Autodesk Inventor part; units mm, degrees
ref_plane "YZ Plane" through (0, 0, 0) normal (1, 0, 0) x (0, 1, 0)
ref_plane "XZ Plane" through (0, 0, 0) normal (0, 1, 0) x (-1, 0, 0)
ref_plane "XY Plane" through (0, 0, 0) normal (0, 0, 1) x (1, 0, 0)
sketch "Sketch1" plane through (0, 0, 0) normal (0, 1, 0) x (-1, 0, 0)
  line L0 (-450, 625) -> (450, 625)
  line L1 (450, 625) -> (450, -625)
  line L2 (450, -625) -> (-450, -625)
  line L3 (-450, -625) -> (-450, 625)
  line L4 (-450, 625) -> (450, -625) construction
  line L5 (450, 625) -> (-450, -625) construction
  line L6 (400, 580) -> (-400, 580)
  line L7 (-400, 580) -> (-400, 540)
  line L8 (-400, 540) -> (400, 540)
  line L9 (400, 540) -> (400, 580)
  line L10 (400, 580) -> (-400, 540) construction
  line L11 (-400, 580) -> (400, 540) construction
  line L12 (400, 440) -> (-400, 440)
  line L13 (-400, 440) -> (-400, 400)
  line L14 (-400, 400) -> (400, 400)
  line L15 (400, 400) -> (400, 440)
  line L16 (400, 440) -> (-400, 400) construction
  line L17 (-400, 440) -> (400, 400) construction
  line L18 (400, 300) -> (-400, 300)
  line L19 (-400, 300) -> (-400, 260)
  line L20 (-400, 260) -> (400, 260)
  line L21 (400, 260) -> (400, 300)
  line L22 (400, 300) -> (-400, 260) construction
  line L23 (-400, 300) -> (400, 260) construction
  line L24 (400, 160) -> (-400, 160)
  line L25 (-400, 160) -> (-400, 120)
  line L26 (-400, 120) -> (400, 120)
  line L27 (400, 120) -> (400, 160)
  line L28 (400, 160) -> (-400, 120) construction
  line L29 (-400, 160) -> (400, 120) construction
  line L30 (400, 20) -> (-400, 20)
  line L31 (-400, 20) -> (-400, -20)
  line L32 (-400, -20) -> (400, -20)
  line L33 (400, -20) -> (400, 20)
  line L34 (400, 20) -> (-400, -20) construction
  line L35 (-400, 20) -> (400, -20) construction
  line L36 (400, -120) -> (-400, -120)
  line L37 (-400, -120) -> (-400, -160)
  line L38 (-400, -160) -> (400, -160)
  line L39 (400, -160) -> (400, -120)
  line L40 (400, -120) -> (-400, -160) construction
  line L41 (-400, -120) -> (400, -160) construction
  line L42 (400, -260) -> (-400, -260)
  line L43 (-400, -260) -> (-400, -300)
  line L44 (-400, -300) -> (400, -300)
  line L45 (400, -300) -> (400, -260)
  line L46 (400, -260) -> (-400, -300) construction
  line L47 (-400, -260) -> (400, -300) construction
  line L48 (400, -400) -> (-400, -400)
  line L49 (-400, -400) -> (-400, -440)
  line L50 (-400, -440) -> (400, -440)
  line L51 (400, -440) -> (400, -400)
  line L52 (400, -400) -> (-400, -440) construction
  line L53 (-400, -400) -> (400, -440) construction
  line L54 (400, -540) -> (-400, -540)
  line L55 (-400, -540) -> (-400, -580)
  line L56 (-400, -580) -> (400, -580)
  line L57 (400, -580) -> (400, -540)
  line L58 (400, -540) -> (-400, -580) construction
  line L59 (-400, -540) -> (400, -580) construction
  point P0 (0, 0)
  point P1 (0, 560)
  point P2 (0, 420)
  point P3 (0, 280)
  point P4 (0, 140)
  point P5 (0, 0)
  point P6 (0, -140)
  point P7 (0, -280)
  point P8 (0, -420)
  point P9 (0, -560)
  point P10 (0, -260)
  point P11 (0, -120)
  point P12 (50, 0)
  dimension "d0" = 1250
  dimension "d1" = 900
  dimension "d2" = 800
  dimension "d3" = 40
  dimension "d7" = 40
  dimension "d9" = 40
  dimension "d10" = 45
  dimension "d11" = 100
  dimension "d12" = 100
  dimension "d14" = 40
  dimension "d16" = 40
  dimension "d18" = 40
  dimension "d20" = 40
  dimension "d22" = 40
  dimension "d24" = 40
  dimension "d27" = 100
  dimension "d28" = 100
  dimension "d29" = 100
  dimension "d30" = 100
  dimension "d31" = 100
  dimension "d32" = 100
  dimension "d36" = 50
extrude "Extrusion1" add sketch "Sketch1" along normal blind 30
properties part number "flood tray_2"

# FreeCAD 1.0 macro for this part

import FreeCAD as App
import Part
import Sketcher

V = App.Vector
Q = App.Units.Quantity

doc = App.newDocument("Part")
body = doc.addObject("PartDesign::Body", "Body")

sketch1 = body.newObject("Sketcher::SketchObject", "Sketch")
sketch1.AttachmentSupport = (doc.getObject("XZ_Plane"), [""])
sketch1.MapMode = "FlatFace"
sketch1.addGeometry(Part.LineSegment(V(-450, 625, 0), V(450, 625, 0)), False)
sketch1.addGeometry(Part.LineSegment(V(450, 625, 0), V(450, -625, 0)), False)
sketch1.addGeometry(Part.LineSegment(V(450, -625, 0), V(-450, -625, 0)), False)
sketch1.addGeometry(Part.LineSegment(V(-450, -625, 0), V(-450, 625, 0)), False)
sketch1.addGeometry(Part.LineSegment(V(400, -540, 0), V(-400, -540, 0)), False)
sketch1.addGeometry(Part.LineSegment(V(-400, -540, 0), V(-400, -580, 0)), False)
sketch1.addGeometry(Part.LineSegment(V(-400, -580, 0), V(400, -580, 0)), False)
sketch1.addGeometry(Part.LineSegment(V(400, -580, 0), V(400, -540, 0)), False)
sketch1.addGeometry(Part.LineSegment(V(400, -400, 0), V(-400, -400, 0)), False)
sketch1.addGeometry(Part.LineSegment(V(-400, -400, 0), V(-400, -440, 0)), False)
sketch1.addGeometry(Part.LineSegment(V(-400, -440, 0), V(400, -440, 0)), False)
sketch1.addGeometry(Part.LineSegment(V(400, -440, 0), V(400, -400, 0)), False)
sketch1.addGeometry(Part.LineSegment(V(400, -260, 0), V(-400, -260, 0)), False)
sketch1.addGeometry(Part.LineSegment(V(-400, -260, 0), V(-400, -300, 0)), False)
sketch1.addGeometry(Part.LineSegment(V(-400, -300, 0), V(400, -300, 0)), False)
sketch1.addGeometry(Part.LineSegment(V(400, -300, 0), V(400, -260, 0)), False)
sketch1.addGeometry(Part.LineSegment(V(400, -120, 0), V(-400, -120, 0)), False)
sketch1.addGeometry(Part.LineSegment(V(-400, -120, 0), V(-400, -160, 0)), False)
sketch1.addGeometry(Part.LineSegment(V(-400, -160, 0), V(400, -160, 0)), False)
sketch1.addGeometry(Part.LineSegment(V(400, -160, 0), V(400, -120, 0)), False)
sketch1.addGeometry(Part.LineSegment(V(400, 20, 0), V(-400, 20, 0)), False)
sketch1.addGeometry(Part.LineSegment(V(-400, 20, 0), V(-400, -20, 0)), False)
sketch1.addGeometry(Part.LineSegment(V(-400, -20, 0), V(400, -20, 0)), False)
sketch1.addGeometry(Part.LineSegment(V(400, -20, 0), V(400, 20, 0)), False)
sketch1.addGeometry(Part.LineSegment(V(400, 160, 0), V(-400, 160, 0)), False)
sketch1.addGeometry(Part.LineSegment(V(-400, 160, 0), V(-400, 120, 0)), False)
sketch1.addGeometry(Part.LineSegment(V(-400, 120, 0), V(400, 120, 0)), False)
sketch1.addGeometry(Part.LineSegment(V(400, 120, 0), V(400, 160, 0)), False)
sketch1.addGeometry(Part.LineSegment(V(400, 300, 0), V(-400, 300, 0)), False)
sketch1.addGeometry(Part.LineSegment(V(-400, 300, 0), V(-400, 260, 0)), False)
sketch1.addGeometry(Part.LineSegment(V(-400, 260, 0), V(400, 260, 0)), False)
sketch1.addGeometry(Part.LineSegment(V(400, 260, 0), V(400, 300, 0)), False)
sketch1.addGeometry(Part.LineSegment(V(400, 440, 0), V(-400, 440, 0)), False)
sketch1.addGeometry(Part.LineSegment(V(-400, 440, 0), V(-400, 400, 0)), False)
sketch1.addGeometry(Part.LineSegment(V(-400, 400, 0), V(400, 400, 0)), False)
sketch1.addGeometry(Part.LineSegment(V(400, 400, 0), V(400, 440, 0)), False)
sketch1.addGeometry(Part.LineSegment(V(400, 580, 0), V(-400, 580, 0)), False)
sketch1.addGeometry(Part.LineSegment(V(-400, 580, 0), V(-400, 540, 0)), False)
sketch1.addGeometry(Part.LineSegment(V(-400, 540, 0), V(400, 540, 0)), False)
sketch1.addGeometry(Part.LineSegment(V(400, 540, 0), V(400, 580, 0)), False)
sketch1.addConstraint(Sketcher.Constraint("Coincident", 0, 2, 1, 1))
sketch1.addConstraint(Sketcher.Constraint("Coincident", 1, 2, 2, 1))
sketch1.addConstraint(Sketcher.Constraint("Coincident", 2, 2, 3, 1))
sketch1.addConstraint(Sketcher.Constraint("Coincident", 3, 2, 0, 1))
sketch1.addConstraint(Sketcher.Constraint("Coincident", 4, 2, 5, 1))
sketch1.addConstraint(Sketcher.Constraint("Coincident", 5, 2, 6, 1))
sketch1.addConstraint(Sketcher.Constraint("Coincident", 6, 2, 7, 1))
sketch1.addConstraint(Sketcher.Constraint("Coincident", 7, 2, 4, 1))
sketch1.addConstraint(Sketcher.Constraint("Coincident", 8, 2, 9, 1))
sketch1.addConstraint(Sketcher.Constraint("Coincident", 9, 2, 10, 1))
sketch1.addConstraint(Sketcher.Constraint("Coincident", 10, 2, 11, 1))
sketch1.addConstraint(Sketcher.Constraint("Coincident", 11, 2, 8, 1))
sketch1.addConstraint(Sketcher.Constraint("Coincident", 12, 2, 13, 1))
sketch1.addConstraint(Sketcher.Constraint("Coincident", 13, 2, 14, 1))
sketch1.addConstraint(Sketcher.Constraint("Coincident", 14, 2, 15, 1))
sketch1.addConstraint(Sketcher.Constraint("Coincident", 15, 2, 12, 1))
sketch1.addConstraint(Sketcher.Constraint("Coincident", 16, 2, 17, 1))
sketch1.addConstraint(Sketcher.Constraint("Coincident", 17, 2, 18, 1))
sketch1.addConstraint(Sketcher.Constraint("Coincident", 18, 2, 19, 1))
sketch1.addConstraint(Sketcher.Constraint("Coincident", 19, 2, 16, 1))
sketch1.addConstraint(Sketcher.Constraint("Coincident", 20, 2, 21, 1))
sketch1.addConstraint(Sketcher.Constraint("Coincident", 21, 2, 22, 1))
sketch1.addConstraint(Sketcher.Constraint("Coincident", 22, 2, 23, 1))
sketch1.addConstraint(Sketcher.Constraint("Coincident", 23, 2, 20, 1))
sketch1.addConstraint(Sketcher.Constraint("Coincident", 24, 2, 25, 1))
sketch1.addConstraint(Sketcher.Constraint("Coincident", 25, 2, 26, 1))
sketch1.addConstraint(Sketcher.Constraint("Coincident", 26, 2, 27, 1))
sketch1.addConstraint(Sketcher.Constraint("Coincident", 27, 2, 24, 1))
sketch1.addConstraint(Sketcher.Constraint("Coincident", 28, 2, 29, 1))
sketch1.addConstraint(Sketcher.Constraint("Coincident", 29, 2, 30, 1))
sketch1.addConstraint(Sketcher.Constraint("Coincident", 30, 2, 31, 1))
sketch1.addConstraint(Sketcher.Constraint("Coincident", 31, 2, 28, 1))
sketch1.addConstraint(Sketcher.Constraint("Coincident", 32, 2, 33, 1))
sketch1.addConstraint(Sketcher.Constraint("Coincident", 33, 2, 34, 1))
sketch1.addConstraint(Sketcher.Constraint("Coincident", 34, 2, 35, 1))
sketch1.addConstraint(Sketcher.Constraint("Coincident", 35, 2, 32, 1))
sketch1.addConstraint(Sketcher.Constraint("Coincident", 36, 2, 37, 1))
sketch1.addConstraint(Sketcher.Constraint("Coincident", 37, 2, 38, 1))
sketch1.addConstraint(Sketcher.Constraint("Coincident", 38, 2, 39, 1))
sketch1.addConstraint(Sketcher.Constraint("Coincident", 39, 2, 36, 1))
sketch1.addConstraint(Sketcher.Constraint("Horizontal", 0))
sketch1.addConstraint(Sketcher.Constraint("Vertical", 1))
sketch1.addConstraint(Sketcher.Constraint("Horizontal", 2))
sketch1.addConstraint(Sketcher.Constraint("Vertical", 3))
sketch1.addConstraint(Sketcher.Constraint("Horizontal", 4))
sketch1.addConstraint(Sketcher.Constraint("Vertical", 5))
sketch1.addConstraint(Sketcher.Constraint("Horizontal", 6))
sketch1.addConstraint(Sketcher.Constraint("Vertical", 7))
sketch1.addConstraint(Sketcher.Constraint("Horizontal", 8))
sketch1.addConstraint(Sketcher.Constraint("Vertical", 9))
sketch1.addConstraint(Sketcher.Constraint("Horizontal", 10))
sketch1.addConstraint(Sketcher.Constraint("Vertical", 11))
sketch1.addConstraint(Sketcher.Constraint("Horizontal", 12))
sketch1.addConstraint(Sketcher.Constraint("Vertical", 13))
sketch1.addConstraint(Sketcher.Constraint("Horizontal", 14))
sketch1.addConstraint(Sketcher.Constraint("Vertical", 15))
sketch1.addConstraint(Sketcher.Constraint("Horizontal", 16))
sketch1.addConstraint(Sketcher.Constraint("Vertical", 17))
sketch1.addConstraint(Sketcher.Constraint("Horizontal", 18))
sketch1.addConstraint(Sketcher.Constraint("Vertical", 19))
sketch1.addConstraint(Sketcher.Constraint("Horizontal", 20))
sketch1.addConstraint(Sketcher.Constraint("Vertical", 21))
sketch1.addConstraint(Sketcher.Constraint("Horizontal", 22))
sketch1.addConstraint(Sketcher.Constraint("Vertical", 23))
sketch1.addConstraint(Sketcher.Constraint("Horizontal", 24))
sketch1.addConstraint(Sketcher.Constraint("Vertical", 25))
sketch1.addConstraint(Sketcher.Constraint("Horizontal", 26))
sketch1.addConstraint(Sketcher.Constraint("Vertical", 27))
sketch1.addConstraint(Sketcher.Constraint("Horizontal", 28))
sketch1.addConstraint(Sketcher.Constraint("Vertical", 29))
sketch1.addConstraint(Sketcher.Constraint("Horizontal", 30))
sketch1.addConstraint(Sketcher.Constraint("Vertical", 31))
sketch1.addConstraint(Sketcher.Constraint("Horizontal", 32))
sketch1.addConstraint(Sketcher.Constraint("Vertical", 33))
sketch1.addConstraint(Sketcher.Constraint("Horizontal", 34))
sketch1.addConstraint(Sketcher.Constraint("Vertical", 35))
sketch1.addConstraint(Sketcher.Constraint("Horizontal", 36))
sketch1.addConstraint(Sketcher.Constraint("Vertical", 37))
sketch1.addConstraint(Sketcher.Constraint("Horizontal", 38))
sketch1.addConstraint(Sketcher.Constraint("Vertical", 39))
sketch1.addConstraint(Sketcher.Constraint("Symmetric", 0, 2, 2, 2, -1, 1))
sketch1.addConstraint(Sketcher.Constraint("Symmetric", 20, 2, 22, 2, -1, 1))
sketch1.addConstraint(Sketcher.Constraint("Symmetric", 18, 2, 24, 2, -1, 1))
sketch1.addConstraint(Sketcher.Constraint("Symmetric", 16, 2, 26, 2, -1, 1))
sketch1.addConstraint(Sketcher.Constraint("Symmetric", 14, 2, 28, 2, -1, 1))
sketch1.addConstraint(Sketcher.Constraint("Symmetric", 12, 2, 30, 2, -1, 1))
sketch1.addConstraint(Sketcher.Constraint("Symmetric", 10, 2, 32, 2, -1, 1))
sketch1.addConstraint(Sketcher.Constraint("Symmetric", 8, 2, 34, 2, -1, 1))
sketch1.addConstraint(Sketcher.Constraint("Symmetric", 6, 2, 36, 2, -1, 1))
sketch1.addConstraint(Sketcher.Constraint("Symmetric", 4, 2, 38, 2, -1, 1))
sketch1.addConstraint(Sketcher.Constraint("Vertical", 5, 2, 8, 2))
sketch1.addConstraint(Sketcher.Constraint("Vertical", 7, 2, 10, 2))
sketch1.addConstraint(Sketcher.Constraint("Vertical", 9, 2, 12, 2))
sketch1.addConstraint(Sketcher.Constraint("Vertical", 11, 2, 14, 2))
sketch1.addConstraint(Sketcher.Constraint("Vertical", 13, 2, 16, 2))
sketch1.addConstraint(Sketcher.Constraint("Vertical", 15, 2, 18, 2))
sketch1.addConstraint(Sketcher.Constraint("Vertical", 17, 2, 20, 2))
sketch1.addConstraint(Sketcher.Constraint("Vertical", 19, 2, 22, 2))
sketch1.addConstraint(Sketcher.Constraint("Equal", 7, 9))
sketch1.addConstraint(Sketcher.Constraint("Equal", 11, 13))
sketch1.addConstraint(Sketcher.Constraint("Equal", 15, 17))
sketch1.addConstraint(Sketcher.Constraint("Equal", 19, 21))
sketch1.addConstraint(Sketcher.Constraint("DistanceX", 0, 1, 0, 2, Q("900 mm")))
sketch1.addConstraint(Sketcher.Constraint("DistanceX", 4, 2, 4, 1, Q("800 mm")))
sketch1.addConstraint(Sketcher.Constraint("DistanceY", 1, 2, 1, 1, Q("1250 mm")))
sketch1.addConstraint(Sketcher.Constraint("DistanceY", 5, 2, 5, 1, Q("40 mm")))
sketch1.addConstraint(Sketcher.Constraint("DistanceY", 2, 2, 5, 2, Q("45 mm")))
sketch1.addConstraint(Sketcher.Constraint("DistanceY", 4, 2, 9, 2, Q("100 mm")))
sketch1.addConstraint(Sketcher.Constraint("DistanceY", 8, 2, 13, 2, Q("100 mm")))
sketch1.addConstraint(Sketcher.Constraint("DistanceY", 12, 2, 17, 2, Q("100 mm")))
pad1 = body.newObject("PartDesign::Pad", "Pad")
pad1.Profile = sketch1
pad1.Length = 30
pad1.Reversed = True

doc.recompute()
